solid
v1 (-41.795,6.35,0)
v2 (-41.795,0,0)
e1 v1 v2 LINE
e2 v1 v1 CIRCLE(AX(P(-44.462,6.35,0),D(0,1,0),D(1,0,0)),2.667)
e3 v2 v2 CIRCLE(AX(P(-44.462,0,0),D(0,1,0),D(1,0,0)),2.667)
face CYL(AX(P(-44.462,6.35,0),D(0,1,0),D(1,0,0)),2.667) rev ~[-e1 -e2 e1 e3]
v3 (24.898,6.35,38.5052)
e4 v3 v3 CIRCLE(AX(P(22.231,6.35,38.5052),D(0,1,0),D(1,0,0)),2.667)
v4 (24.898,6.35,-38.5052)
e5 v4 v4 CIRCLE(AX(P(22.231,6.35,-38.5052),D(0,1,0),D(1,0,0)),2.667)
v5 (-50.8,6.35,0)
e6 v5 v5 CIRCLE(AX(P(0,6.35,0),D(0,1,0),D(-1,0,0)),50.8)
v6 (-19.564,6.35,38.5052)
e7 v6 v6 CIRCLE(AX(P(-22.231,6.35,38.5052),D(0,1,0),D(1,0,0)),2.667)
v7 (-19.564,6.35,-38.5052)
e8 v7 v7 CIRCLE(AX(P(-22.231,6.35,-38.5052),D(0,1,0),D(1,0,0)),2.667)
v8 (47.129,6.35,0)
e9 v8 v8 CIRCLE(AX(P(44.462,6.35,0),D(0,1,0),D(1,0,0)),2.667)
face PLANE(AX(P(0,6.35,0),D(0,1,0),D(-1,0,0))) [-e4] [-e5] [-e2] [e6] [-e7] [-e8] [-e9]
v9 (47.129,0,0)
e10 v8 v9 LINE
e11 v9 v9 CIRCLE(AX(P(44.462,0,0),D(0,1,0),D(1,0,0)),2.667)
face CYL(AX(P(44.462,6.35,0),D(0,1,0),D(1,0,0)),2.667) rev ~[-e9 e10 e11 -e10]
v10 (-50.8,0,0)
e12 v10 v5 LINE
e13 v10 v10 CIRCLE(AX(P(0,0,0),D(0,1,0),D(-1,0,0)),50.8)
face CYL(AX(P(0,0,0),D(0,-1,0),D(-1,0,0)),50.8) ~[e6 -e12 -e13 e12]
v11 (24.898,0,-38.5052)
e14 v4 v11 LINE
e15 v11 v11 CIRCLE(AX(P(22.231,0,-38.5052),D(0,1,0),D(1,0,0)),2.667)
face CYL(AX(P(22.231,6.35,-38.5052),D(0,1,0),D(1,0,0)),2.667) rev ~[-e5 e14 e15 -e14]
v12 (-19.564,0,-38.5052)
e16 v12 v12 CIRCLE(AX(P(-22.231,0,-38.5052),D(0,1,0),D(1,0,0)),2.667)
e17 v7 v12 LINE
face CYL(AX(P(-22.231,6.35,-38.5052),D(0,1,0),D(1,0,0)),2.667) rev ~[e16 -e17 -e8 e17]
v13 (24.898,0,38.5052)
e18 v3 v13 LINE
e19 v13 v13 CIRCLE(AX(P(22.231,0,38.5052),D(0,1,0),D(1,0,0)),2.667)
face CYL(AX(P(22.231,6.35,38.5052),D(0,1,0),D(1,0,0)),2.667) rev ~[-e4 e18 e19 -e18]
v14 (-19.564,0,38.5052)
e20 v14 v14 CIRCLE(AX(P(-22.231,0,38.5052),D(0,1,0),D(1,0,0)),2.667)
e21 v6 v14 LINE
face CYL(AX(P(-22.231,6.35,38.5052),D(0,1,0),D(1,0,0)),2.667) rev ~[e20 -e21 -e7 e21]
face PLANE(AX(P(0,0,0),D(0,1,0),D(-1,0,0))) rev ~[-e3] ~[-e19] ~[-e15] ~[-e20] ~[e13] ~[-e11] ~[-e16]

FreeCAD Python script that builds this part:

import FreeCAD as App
import Part
import Sketcher
Q = App.Units.Quantity

doc = App.newDocument("Part")
body = doc.addObject("PartDesign::Body", "Body")

# Sketch on XZ plane
sketch1 = body.newObject("Sketcher::SketchObject", "Sketch")
sketch1.AttachmentSupport = (doc.getObject("XZ_Plane"), [""])
sketch1.MapMode = "FlatFace"
sketch1.addGeometry(Part.Circle(App.Vector(0, 0, 0), App.Vector(0, 0, 1), 50.8), False)
sketch1.addConstraint(Sketcher.Constraint("Coincident", 0, 3, -1, 1))
sketch1.addConstraint(Sketcher.Constraint("Diameter", 0, Q("4 in")))
pad1 = body.newObject("PartDesign::Pad", "Pad")
pad1.Profile = sketch1
pad1.Length = Q("0.25 in")
pad1.Reversed = True

# Sketch on XZ plane
sketch2 = body.newObject("Sketcher::SketchObject", "Sketch001")
sketch2.AttachmentSupport = (doc.getObject("XZ_Plane"), [""])
sketch2.MapMode = "FlatFace"
sketch2.AttachmentOffset = App.Placement(App.Vector(0, 0, -0.25 * 25.4), App.Rotation())
sketch2.addGeometry(Part.Circle(App.Vector(-44.462, 0, 0), App.Vector(0, 0, 1), 2.667), False)
sketch2.addGeometry(Part.Circle(App.Vector(-22.231, 38.5052, 0), App.Vector(0, 0, 1), 2.667), False)
sketch2.addGeometry(Part.Circle(App.Vector(22.231, 38.5052, 0), App.Vector(0, 0, 1), 2.667), False)
sketch2.addGeometry(Part.Circle(App.Vector(44.462, 0, 0), App.Vector(0, 0, 1), 2.667), False)
sketch2.addGeometry(Part.Circle(App.Vector(22.231, -38.5052, 0), App.Vector(0, 0, 1), 2.667), False)
sketch2.addGeometry(Part.Circle(App.Vector(-22.231, -38.5052, 0), App.Vector(0, 0, 1), 2.667), False)
sketch2.addConstraint(Sketcher.Constraint("Equal", 0, 1))
sketch2.addConstraint(Sketcher.Constraint("Equal", 1, 2))
sketch2.addConstraint(Sketcher.Constraint("Equal", 2, 3))
sketch2.addConstraint(Sketcher.Constraint("Equal", 3, 4))
sketch2.addConstraint(Sketcher.Constraint("Equal", 4, 5))
sketch2.addConstraint(Sketcher.Constraint("Symmetric", 0, 3, 3, 3, -1, 1))
sketch2.addConstraint(Sketcher.Constraint("Symmetric", 1, 3, 4, 3, -1, 1))
sketch2.addConstraint(Sketcher.Constraint("Symmetric", 2, 3, 5, 3, -1, 1))
sketch2.addConstraint(Sketcher.Constraint("Symmetric", 1, 3, 2, 3, -2))
sketch2.addConstraint(Sketcher.Constraint("PointOnObject", 0, 3, -1))
sketch2.addConstraint(Sketcher.Constraint("Diameter", 0, Q("0.21 in")))
sketch2.addConstraint(Sketcher.Constraint("DistanceX", 0, 3, 2, 3, Q("2.6257 in")))
sketch2.addConstraint(Sketcher.Constraint("DistanceY", 4, 3, 2, 3, Q("3.0319 in")))
sketch2.addConstraint(Sketcher.Constraint("DistanceX", 0, 3, -1, 1, Q("44.462 mm")))
pocket1 = body.newObject("PartDesign::Pocket", "Pocket")
pocket1.Profile = sketch2
pocket1.Length = Q("0.25 in")
pocket1.Reversed = True

doc.recompute()
